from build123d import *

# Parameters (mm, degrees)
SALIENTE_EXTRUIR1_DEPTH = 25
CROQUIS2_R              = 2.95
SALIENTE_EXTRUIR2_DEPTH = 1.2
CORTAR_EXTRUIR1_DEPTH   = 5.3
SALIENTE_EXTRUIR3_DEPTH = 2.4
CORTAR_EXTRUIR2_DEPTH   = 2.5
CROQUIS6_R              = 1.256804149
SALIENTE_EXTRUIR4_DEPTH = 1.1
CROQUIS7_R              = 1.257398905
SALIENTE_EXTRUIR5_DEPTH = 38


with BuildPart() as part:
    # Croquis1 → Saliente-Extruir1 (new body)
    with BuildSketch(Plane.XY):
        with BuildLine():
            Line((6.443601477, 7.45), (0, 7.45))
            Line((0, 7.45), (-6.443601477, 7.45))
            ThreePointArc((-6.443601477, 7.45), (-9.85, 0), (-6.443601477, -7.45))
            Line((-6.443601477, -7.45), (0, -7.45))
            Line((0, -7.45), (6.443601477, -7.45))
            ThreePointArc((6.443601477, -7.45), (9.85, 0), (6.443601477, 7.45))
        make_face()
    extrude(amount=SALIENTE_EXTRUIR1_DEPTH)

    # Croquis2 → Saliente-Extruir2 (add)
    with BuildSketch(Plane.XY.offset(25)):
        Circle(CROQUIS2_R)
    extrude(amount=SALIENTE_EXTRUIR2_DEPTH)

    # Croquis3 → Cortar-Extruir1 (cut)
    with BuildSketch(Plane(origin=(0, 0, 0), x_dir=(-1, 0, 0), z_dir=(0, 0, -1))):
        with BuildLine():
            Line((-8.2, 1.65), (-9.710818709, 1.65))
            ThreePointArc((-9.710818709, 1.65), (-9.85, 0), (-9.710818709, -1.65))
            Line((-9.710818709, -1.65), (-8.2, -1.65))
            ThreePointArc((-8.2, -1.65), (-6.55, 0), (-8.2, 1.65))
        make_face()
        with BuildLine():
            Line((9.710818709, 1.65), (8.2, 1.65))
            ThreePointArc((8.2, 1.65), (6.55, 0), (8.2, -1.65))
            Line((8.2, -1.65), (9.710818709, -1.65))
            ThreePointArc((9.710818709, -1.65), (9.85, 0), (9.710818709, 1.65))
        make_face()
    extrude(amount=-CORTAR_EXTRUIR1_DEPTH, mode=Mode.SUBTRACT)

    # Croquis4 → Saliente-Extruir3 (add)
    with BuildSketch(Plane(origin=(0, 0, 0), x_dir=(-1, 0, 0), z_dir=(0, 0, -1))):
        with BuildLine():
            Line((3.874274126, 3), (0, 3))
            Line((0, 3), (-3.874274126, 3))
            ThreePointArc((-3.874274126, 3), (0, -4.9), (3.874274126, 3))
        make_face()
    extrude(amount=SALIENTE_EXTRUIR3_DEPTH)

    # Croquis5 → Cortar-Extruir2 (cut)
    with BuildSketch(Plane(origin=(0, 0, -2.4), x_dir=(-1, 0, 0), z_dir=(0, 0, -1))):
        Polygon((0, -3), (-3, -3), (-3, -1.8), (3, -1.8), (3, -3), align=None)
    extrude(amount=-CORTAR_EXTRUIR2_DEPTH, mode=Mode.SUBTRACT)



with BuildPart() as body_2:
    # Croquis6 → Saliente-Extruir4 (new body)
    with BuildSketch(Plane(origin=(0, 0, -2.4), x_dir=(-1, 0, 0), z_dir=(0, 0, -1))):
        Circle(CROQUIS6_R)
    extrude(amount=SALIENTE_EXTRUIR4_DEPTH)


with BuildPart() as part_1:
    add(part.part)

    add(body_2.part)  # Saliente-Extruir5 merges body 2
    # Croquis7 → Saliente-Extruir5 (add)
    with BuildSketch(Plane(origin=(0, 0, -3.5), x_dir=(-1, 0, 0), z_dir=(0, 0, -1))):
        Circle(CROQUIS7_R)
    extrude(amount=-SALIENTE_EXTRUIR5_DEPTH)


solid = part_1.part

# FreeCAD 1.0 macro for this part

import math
import FreeCAD as App
import Part
import Sketcher

V = App.Vector

doc = App.newDocument("Part")
body = doc.addObject("PartDesign::Body", "Body")

# Sketch on XY plane
sketch1 = doc.addObject("Sketcher::SketchObject", "Sketch")
body.addObject(sketch1)
sketch1.AttachmentSupport = (doc.XY_Plane, [""])
sketch1.MapMode = "FlatFace"
sketch1.addGeometry([
    Part.LineSegment(V(6, 7, 0), V(-6, 7, 0)),
    Part.ArcOfCircle(Part.Circle(V(0, 0, 0), V(0, 0, 1), 10), math.radians(131), math.radians(229)),
    Part.LineSegment(V(-6, -7, 0), V(6, -7, 0)),
    Part.ArcOfCircle(Part.Circle(V(0, 0, 0), V(0, 0, 1), 10), math.radians(-49), math.radians(49)),
], False)
sketch1.addConstraint([
    Sketcher.Constraint("Coincident", 0, 2, 1, 1),
    Sketcher.Constraint("Coincident", 1, 2, 2, 1),
    Sketcher.Constraint("Coincident", 2, 2, 3, 1),
    Sketcher.Constraint("Coincident", 3, 2, 0, 1),
    Sketcher.Constraint("Horizontal", 0),
    Sketcher.Constraint("Horizontal", 2),
    Sketcher.Constraint("Coincident", 1, 3, -1, 1),
    Sketcher.Constraint("Coincident", 3, 3, -1, 1),
    Sketcher.Constraint("Equal", 1, 3),
    Sketcher.Constraint("Vertical", 0, 2, 1, 2),
    Sketcher.Constraint("Radius", 1, 9.85),
    Sketcher.Constraint("DistanceY", 1, 2, 0, 2, 14.9),
])
pad1 = doc.addObject("PartDesign::Pad", "Pad")
body.addObject(pad1)
pad1.Profile = sketch1
pad1.Length = 25

# Sketch on XY plane
sketch2 = doc.addObject("Sketcher::SketchObject", "Sketch001")
body.addObject(sketch2)
sketch2.AttachmentSupport = (doc.XY_Plane, [""])
sketch2.MapMode = "FlatFace"
sketch2.AttachmentOffset = App.Placement(V(0, 0, 25), App.Rotation())
sketch2.addGeometry(Part.Circle(V(0, 0, 0), V(0, 0, 1), 3), False)
sketch2.addConstraint([
    Sketcher.Constraint("Coincident", 0, 3, -1, 1),
    Sketcher.Constraint("Diameter", 0, 5.9),
])
pad2 = doc.addObject("PartDesign::Pad", "Pad001")
body.addObject(pad2)
pad2.Profile = sketch2
pad2.Length = 1.2

# Sketch on XY plane
sketch3 = doc.addObject("Sketcher::SketchObject", "Sketch002")
body.addObject(sketch3)
sketch3.AttachmentSupport = (doc.XY_Plane, [""])
sketch3.MapMode = "FlatFace"
sketch3.addGeometry([
    Part.LineSegment(V(8.2, 1.6, 0), V(9.7, 1.6, 0)),  # 0
    Part.ArcOfCircle(Part.Circle(V(0, 0, 0), V(0, 0, 1), 9.8), math.radians(-9.64), math.radians(9.64)),  # 1
    Part.LineSegment(V(9.7, -1.6, 0), V(8.2, -1.6, 0)),  # 2
    Part.ArcOfCircle(Part.Circle(V(8.2, 0, 0), V(0, 0, 1), 1.6), math.radians(90), math.radians(270)),  # 3
    Part.LineSegment(V(-9.7, 1.6, 0), V(-8.2, 1.6, 0)),  # 4
    Part.ArcOfCircle(Part.Circle(V(-8.2, 0, 0), V(0, 0, 1), 1.6), math.radians(-90), math.radians(90)),  # 5
    Part.LineSegment(V(-8.2, -1.6, 0), V(-9.7, -1.6, 0)),  # 6
    Part.ArcOfCircle(Part.Circle(V(0, 0, 0), V(0, 0, 1), 9.8), math.radians(170.36), math.radians(189.64)),  # 7
], False)
sketch3.addConstraint([
    Sketcher.Constraint("Coincident", 0, 2, 1, 2),
    Sketcher.Constraint("Coincident", 1, 1, 2, 1),
    Sketcher.Constraint("Tangent", 2, 2, 3, 2),
    Sketcher.Constraint("Tangent", 3, 1, 0, 1),
    Sketcher.Constraint("Tangent", 4, 2, 5, 2),
    Sketcher.Constraint("Tangent", 5, 1, 6, 1),
    Sketcher.Constraint("Coincident", 6, 2, 7, 2),
    Sketcher.Constraint("Coincident", 7, 1, 4, 1),
    Sketcher.Constraint("Horizontal", 0),
    Sketcher.Constraint("Horizontal", 2),
    Sketcher.Constraint("Horizontal", 4),
    Sketcher.Constraint("Horizontal", 6),
    Sketcher.Constraint("Coincident", 1, 3, -1, 1),
    Sketcher.Constraint("Coincident", 7, 3, -1, 1),
    Sketcher.Constraint("Equal", 3, 5),
    Sketcher.Constraint("Equal", 1, 7),
    Sketcher.Constraint("Symmetric", 3, 3, 5, 3, -1, 1),
    Sketcher.Constraint("PointOnObject", 3, 3, -1),
    Sketcher.Constraint("Radius", 1, 9.85),
    Sketcher.Constraint("Radius", 3, 1.65),
    Sketcher.Constraint("DistanceX", -1, 1, 3, 3, 8.2),
])
pocket1 = doc.addObject("PartDesign::Pocket", "Pocket")
body.addObject(pocket1)
pocket1.Profile = sketch3
pocket1.Length = 5.3
pocket1.Reversed = True

# Sketch on XY plane
sketch4 = doc.addObject("Sketcher::SketchObject", "Sketch003")
body.addObject(sketch4)
sketch4.AttachmentSupport = (doc.XY_Plane, [""])
sketch4.MapMode = "FlatFace"
sketch4.addGeometry([
    Part.LineSegment(V(-3.9, 3, 0), V(3.9, 3, 0)),
    Part.ArcOfCircle(Part.Circle(V(0, 0, 0), V(0, 0, 1), 4.9), math.radians(142), math.radians(398)),
], False)
sketch4.addConstraint([
    Sketcher.Constraint("Coincident", 0, 1, 1, 1),
    Sketcher.Constraint("Coincident", 1, 2, 0, 2),
    Sketcher.Constraint("Horizontal", 0),
    Sketcher.Constraint("Coincident", 1, 3, -1, 1),
    Sketcher.Constraint("Radius", 1, 4.9),
    Sketcher.Constraint("DistanceY", -1, 1, 0, 1, 3.0),
])
pad3 = doc.addObject("PartDesign::Pad", "Pad002")
body.addObject(pad3)
pad3.Profile = sketch4
pad3.Length = 2.4
pad3.Reversed = True

# Sketch on XY plane
sketch5 = doc.addObject("Sketcher::SketchObject", "Sketch004")
body.addObject(sketch5)
sketch5.AttachmentSupport = (doc.XY_Plane, [""])
sketch5.MapMode = "FlatFace"
sketch5.AttachmentOffset = App.Placement(V(0, 0, -2.4), App.Rotation())
sketch5.addGeometry([
    Part.LineSegment(V(3, -3, 0), V(-3, -3, 0)),
    Part.LineSegment(V(-3, -3, 0), V(-3, -1.8, 0)),
    Part.LineSegment(V(-3, -1.8, 0), V(3, -1.8, 0)),
    Part.LineSegment(V(3, -1.8, 0), V(3, -3, 0)),
], False)
sketch5.addConstraint([
    Sketcher.Constraint("Coincident", 0, 2, 1, 1),
    Sketcher.Constraint("Coincident", 1, 2, 2, 1),
    Sketcher.Constraint("Coincident", 2, 2, 3, 1),
    Sketcher.Constraint("Coincident", 3, 2, 0, 1),
    Sketcher.Constraint("Horizontal", 0),
    Sketcher.Constraint("Vertical", 1),
    Sketcher.Constraint("Horizontal", 2),
    Sketcher.Constraint("Vertical", 3),
    Sketcher.Constraint("DistanceX", 0, 2, 0, 1, 6.0),
    Sketcher.Constraint("DistanceY", 1, 1, 1, 2, 1.2),
    Sketcher.Constraint("DistanceX", 0, 2, -1, 1, 3.0),
    Sketcher.Constraint("DistanceY", 0, 2, -1, 1, 3.0),
])
pocket2 = doc.addObject("PartDesign::Pocket", "Pocket001")
body.addObject(pocket2)
pocket2.Profile = sketch5
pocket2.Length = 2.5
pocket2.Reversed = True
body2 = doc.addObject("PartDesign::Body", "Body001")

# Sketch on XY plane
sketch6 = doc.addObject("Sketcher::SketchObject", "Sketch005")
body2.addObject(sketch6)
sketch6.AttachmentSupport = (doc.getObject("XY_Plane001"), [""])
sketch6.MapMode = "FlatFace"
sketch6.AttachmentOffset = App.Placement(V(0, 0, -2.4), App.Rotation())
sketch6.addGeometry(Part.Circle(V(0, 0, 0), V(0, 0, 1), 1.3), False)
sketch6.addConstraint([
    Sketcher.Constraint("Coincident", 0, 3, -1, 1),
    Sketcher.Constraint("Diameter", 0, 2.513608),
])
pad4 = doc.addObject("PartDesign::Pad", "Pad003")
body2.addObject(pad4)
pad4.Profile = sketch6
pad4.Length = 1.1
pad4.Reversed = True
doc.recompute()

boolean = doc.addObject("PartDesign::Boolean", "Boolean")
body.addObject(boolean)
boolean.Type = "Fuse"
boolean.addObjects([body2])

# Sketch on XY plane
sketch7 = doc.addObject("Sketcher::SketchObject", "Sketch006")
body.addObject(sketch7)
sketch7.AttachmentSupport = (doc.XY_Plane, [""])
sketch7.MapMode = "FlatFace"
sketch7.AttachmentOffset = App.Placement(V(0, 0, -3.5), App.Rotation())
sketch7.addGeometry(Part.Circle(V(0, 0, 0), V(0, 0, 1), 1.3), False)
sketch7.addConstraint([
    Sketcher.Constraint("Coincident", 0, 3, -1, 1),
    Sketcher.Constraint("Diameter", 0, 2.514798),
])
pad5 = doc.addObject("PartDesign::Pad", "Pad004")
body.addObject(pad5)
pad5.Profile = sketch7
pad5.Length = 38

doc.recompute()
